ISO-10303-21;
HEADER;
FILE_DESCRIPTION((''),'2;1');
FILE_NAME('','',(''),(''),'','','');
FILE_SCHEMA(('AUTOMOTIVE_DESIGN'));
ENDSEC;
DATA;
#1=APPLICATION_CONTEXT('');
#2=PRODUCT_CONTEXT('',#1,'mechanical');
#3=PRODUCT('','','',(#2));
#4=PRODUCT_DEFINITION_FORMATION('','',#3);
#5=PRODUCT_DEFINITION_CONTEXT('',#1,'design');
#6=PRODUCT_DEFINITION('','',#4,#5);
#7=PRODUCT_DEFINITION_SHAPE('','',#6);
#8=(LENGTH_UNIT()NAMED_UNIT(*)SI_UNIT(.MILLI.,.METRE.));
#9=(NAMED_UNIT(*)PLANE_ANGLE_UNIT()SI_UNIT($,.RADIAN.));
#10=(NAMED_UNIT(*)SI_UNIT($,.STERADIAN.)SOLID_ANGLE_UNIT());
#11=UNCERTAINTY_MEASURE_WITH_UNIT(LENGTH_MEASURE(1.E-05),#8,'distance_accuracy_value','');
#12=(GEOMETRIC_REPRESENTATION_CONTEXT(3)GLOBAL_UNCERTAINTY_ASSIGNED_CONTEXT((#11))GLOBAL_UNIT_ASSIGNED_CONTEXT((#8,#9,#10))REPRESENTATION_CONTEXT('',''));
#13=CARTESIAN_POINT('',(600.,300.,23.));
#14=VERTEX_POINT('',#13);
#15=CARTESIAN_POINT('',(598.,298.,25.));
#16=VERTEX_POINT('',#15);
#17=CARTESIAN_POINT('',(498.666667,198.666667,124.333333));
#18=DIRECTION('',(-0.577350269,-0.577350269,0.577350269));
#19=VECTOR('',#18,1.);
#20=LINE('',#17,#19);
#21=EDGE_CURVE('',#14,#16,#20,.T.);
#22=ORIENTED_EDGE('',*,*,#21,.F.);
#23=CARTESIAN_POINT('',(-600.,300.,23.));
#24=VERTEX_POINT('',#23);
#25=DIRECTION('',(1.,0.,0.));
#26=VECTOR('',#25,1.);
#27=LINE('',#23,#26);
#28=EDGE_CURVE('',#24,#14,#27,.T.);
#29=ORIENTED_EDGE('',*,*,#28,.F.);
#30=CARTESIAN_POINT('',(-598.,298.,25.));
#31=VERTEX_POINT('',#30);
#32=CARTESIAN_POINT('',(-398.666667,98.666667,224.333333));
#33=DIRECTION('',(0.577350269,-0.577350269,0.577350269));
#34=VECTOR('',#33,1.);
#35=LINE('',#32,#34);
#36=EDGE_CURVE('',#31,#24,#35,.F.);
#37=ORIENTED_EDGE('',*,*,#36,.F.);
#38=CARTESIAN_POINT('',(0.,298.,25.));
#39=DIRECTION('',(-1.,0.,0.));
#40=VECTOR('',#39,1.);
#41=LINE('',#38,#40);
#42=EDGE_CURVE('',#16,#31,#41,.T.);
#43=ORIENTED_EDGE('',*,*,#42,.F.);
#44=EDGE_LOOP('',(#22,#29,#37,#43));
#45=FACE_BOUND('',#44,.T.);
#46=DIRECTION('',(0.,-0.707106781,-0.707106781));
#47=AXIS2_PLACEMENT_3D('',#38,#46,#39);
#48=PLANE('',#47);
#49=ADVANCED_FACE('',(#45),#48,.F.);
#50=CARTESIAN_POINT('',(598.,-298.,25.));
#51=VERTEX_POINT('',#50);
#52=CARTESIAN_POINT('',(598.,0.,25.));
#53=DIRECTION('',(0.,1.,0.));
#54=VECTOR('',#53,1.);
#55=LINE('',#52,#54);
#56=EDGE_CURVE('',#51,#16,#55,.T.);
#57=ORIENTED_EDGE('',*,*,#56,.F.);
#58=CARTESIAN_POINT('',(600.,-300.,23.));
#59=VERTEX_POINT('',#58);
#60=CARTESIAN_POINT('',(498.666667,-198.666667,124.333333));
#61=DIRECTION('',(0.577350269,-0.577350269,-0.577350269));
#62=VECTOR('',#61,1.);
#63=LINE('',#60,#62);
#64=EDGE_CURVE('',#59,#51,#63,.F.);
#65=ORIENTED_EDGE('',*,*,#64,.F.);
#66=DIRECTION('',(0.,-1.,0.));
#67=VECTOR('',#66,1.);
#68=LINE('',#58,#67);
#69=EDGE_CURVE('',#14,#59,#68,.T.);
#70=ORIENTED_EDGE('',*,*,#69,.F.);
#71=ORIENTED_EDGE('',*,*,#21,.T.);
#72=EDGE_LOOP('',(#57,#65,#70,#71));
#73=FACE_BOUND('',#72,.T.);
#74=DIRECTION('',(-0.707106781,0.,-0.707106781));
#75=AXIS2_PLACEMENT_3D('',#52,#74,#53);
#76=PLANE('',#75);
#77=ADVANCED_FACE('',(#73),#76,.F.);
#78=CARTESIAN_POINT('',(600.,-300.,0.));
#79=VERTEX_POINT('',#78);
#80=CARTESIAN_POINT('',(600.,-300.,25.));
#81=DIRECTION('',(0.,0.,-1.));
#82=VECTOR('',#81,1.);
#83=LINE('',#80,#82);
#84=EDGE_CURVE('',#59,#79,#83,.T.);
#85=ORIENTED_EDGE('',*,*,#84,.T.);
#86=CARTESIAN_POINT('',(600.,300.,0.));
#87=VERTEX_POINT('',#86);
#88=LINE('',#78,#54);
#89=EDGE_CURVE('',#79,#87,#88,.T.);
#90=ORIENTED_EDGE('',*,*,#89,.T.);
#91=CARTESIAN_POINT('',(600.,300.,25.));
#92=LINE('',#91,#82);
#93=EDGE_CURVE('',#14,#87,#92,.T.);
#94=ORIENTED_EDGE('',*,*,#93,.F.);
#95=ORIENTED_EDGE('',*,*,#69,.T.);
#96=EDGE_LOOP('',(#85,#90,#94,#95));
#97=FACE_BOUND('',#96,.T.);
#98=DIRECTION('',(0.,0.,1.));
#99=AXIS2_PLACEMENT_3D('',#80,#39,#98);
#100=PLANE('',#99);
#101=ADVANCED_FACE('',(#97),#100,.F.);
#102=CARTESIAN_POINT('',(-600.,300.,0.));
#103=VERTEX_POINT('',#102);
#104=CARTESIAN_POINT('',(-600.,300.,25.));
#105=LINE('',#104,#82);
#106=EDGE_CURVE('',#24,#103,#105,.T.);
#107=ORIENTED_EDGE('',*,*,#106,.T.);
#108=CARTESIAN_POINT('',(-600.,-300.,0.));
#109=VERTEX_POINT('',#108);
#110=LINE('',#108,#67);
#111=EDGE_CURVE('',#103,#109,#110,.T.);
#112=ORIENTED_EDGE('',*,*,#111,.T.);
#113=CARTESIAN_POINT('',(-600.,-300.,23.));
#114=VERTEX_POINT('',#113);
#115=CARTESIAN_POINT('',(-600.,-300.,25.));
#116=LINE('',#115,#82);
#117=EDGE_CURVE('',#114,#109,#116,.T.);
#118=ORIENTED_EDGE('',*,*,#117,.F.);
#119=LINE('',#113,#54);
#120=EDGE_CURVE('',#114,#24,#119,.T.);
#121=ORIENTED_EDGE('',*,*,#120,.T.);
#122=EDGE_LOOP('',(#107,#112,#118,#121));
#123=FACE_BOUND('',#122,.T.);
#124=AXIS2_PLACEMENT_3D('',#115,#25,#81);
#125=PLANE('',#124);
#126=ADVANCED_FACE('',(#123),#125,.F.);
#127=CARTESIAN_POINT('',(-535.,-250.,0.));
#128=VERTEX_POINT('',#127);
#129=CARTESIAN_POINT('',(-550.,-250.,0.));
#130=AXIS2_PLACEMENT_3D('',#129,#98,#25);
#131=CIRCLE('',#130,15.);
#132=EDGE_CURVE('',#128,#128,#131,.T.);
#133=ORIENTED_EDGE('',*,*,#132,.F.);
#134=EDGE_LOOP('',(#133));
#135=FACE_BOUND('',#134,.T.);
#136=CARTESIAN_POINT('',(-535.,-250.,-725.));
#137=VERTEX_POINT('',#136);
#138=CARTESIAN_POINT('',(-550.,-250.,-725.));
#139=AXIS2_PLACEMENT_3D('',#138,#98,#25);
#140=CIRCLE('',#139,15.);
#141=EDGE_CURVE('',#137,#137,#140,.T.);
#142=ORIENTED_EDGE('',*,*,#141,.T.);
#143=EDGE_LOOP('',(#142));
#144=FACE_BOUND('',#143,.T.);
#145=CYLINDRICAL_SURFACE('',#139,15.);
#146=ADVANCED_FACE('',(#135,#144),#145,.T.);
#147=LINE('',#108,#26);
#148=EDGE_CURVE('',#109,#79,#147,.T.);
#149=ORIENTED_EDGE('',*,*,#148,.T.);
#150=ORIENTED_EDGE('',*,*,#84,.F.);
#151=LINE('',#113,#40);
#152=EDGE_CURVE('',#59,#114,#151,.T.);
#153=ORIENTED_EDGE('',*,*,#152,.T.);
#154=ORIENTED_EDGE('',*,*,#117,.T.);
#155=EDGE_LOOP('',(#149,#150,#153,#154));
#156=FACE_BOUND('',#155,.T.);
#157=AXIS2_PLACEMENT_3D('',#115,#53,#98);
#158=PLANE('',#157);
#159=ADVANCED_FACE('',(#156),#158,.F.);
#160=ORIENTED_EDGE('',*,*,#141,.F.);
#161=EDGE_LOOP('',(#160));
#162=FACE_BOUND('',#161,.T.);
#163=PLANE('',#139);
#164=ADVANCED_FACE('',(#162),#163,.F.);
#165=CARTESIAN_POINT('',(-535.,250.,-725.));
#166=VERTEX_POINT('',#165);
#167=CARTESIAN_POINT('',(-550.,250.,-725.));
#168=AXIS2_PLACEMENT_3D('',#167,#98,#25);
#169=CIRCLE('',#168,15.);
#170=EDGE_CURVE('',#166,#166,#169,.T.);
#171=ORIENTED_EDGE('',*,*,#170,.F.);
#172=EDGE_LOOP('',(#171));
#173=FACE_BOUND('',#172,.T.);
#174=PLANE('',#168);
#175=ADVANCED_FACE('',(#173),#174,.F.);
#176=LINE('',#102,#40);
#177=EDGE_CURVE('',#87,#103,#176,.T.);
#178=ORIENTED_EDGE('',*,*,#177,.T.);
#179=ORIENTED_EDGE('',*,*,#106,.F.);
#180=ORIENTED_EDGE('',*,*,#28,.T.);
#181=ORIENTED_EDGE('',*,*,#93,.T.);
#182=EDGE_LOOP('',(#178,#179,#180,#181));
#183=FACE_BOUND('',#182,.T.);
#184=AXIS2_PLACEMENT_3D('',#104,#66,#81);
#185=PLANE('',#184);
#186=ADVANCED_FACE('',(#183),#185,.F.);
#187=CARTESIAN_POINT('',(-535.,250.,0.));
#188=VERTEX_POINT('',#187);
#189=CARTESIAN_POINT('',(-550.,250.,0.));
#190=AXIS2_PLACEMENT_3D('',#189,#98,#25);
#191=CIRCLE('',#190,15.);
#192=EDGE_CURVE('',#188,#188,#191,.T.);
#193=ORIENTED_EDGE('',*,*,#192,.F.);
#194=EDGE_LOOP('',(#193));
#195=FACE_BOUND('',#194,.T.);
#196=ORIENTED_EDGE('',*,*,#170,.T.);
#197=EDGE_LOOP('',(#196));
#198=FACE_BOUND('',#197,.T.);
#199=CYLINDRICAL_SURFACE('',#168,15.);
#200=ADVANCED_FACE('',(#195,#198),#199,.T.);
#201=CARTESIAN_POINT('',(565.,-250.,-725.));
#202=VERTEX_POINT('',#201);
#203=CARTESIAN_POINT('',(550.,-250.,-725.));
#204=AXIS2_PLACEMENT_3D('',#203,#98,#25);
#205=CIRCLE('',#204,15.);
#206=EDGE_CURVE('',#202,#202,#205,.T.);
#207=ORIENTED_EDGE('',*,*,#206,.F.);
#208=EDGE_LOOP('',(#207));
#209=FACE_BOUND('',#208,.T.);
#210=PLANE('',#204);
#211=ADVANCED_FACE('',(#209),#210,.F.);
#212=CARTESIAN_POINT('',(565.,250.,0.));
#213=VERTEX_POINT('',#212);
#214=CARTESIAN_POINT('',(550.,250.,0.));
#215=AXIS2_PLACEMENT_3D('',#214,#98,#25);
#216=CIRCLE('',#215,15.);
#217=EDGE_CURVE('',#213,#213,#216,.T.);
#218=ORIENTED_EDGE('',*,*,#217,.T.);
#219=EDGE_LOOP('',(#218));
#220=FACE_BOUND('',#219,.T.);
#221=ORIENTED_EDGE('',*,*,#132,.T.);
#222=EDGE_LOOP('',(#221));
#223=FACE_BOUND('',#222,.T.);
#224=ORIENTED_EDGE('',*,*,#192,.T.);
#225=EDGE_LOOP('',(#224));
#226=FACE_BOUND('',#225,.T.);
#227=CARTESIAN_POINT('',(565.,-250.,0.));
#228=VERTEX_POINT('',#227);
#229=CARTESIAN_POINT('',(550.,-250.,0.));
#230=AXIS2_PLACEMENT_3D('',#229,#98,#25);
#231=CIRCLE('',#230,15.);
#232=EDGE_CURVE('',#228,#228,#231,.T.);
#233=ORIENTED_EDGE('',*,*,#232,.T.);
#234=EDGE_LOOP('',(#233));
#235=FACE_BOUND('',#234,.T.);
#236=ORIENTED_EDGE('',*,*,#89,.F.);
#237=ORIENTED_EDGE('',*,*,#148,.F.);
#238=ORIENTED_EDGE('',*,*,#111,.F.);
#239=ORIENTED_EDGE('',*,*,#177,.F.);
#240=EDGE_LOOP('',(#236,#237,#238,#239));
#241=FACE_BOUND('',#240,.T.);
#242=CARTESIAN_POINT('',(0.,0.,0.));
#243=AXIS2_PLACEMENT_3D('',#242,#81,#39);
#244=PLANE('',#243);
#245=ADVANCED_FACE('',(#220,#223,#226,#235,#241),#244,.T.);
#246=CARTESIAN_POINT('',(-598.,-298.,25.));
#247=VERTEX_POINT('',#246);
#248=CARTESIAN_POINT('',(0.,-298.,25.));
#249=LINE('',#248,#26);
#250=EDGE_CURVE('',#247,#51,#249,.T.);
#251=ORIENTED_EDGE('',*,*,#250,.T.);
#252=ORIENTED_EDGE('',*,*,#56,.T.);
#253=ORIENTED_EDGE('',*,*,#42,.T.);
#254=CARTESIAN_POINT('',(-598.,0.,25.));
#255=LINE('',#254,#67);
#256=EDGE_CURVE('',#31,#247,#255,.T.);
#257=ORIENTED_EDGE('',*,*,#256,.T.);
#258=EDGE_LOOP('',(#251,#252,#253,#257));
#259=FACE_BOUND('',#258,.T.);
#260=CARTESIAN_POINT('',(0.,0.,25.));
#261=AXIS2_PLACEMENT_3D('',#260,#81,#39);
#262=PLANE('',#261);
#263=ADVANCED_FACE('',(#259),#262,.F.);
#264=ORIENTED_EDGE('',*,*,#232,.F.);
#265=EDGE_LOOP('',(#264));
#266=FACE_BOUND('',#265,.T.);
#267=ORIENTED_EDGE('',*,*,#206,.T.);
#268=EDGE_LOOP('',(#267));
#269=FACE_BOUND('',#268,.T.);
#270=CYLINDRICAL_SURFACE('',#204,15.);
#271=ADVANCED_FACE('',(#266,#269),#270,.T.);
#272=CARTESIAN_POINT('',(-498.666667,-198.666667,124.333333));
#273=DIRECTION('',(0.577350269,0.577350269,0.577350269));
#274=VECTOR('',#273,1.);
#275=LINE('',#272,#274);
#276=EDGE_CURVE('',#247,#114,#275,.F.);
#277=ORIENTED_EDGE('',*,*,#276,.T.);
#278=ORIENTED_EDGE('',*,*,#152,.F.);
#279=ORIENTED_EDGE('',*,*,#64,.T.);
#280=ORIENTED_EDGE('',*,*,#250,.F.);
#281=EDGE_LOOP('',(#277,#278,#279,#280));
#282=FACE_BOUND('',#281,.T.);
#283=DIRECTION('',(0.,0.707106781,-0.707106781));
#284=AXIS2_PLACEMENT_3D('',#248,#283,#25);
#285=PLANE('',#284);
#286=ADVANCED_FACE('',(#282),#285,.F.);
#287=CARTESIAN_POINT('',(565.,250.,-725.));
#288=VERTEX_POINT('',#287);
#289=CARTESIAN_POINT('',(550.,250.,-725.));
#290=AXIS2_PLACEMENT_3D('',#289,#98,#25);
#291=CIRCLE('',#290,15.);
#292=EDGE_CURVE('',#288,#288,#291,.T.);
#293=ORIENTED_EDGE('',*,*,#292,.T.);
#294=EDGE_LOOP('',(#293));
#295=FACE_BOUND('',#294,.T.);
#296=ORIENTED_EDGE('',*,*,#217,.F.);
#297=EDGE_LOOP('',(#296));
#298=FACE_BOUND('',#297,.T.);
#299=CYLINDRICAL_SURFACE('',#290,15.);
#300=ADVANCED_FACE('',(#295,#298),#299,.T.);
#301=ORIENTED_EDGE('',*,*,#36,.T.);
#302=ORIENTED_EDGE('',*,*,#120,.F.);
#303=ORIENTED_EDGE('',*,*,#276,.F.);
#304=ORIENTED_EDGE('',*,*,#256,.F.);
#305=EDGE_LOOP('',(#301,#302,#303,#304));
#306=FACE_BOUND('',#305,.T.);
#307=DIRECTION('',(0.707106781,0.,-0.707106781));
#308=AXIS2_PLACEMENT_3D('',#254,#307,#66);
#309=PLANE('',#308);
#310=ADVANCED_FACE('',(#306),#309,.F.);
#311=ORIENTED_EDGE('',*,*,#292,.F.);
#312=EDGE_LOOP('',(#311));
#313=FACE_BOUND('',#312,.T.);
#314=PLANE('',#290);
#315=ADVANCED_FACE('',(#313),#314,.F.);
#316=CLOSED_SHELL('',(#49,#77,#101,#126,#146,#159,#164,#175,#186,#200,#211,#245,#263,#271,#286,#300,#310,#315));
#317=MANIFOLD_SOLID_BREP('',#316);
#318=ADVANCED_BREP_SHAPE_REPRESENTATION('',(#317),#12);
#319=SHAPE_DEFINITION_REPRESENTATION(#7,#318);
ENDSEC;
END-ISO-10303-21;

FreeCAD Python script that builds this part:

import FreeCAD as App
import Part
import Sketcher

V = App.Vector


def edges_at(feature, points):
    """Names of the edges that pass closest to the given points."""
    edges = feature.Shape.Edges
    near = lambda p: min(range(len(edges)), key=lambda i: edges[i].distToShape(Part.Vertex(*p))[0])
    return sorted({f"Edge{near(p) + 1}" for p in points})


def add_polygon(sketch, points):
    """Adds a closed chain of lines whose ends are joined by coincident constraints."""
    first, n = sketch.GeometryCount, len(points)
    for a, b in zip(points, points[1:] + points[:1]):
        sketch.addGeometry(Part.LineSegment(App.Vector(*a, 0), App.Vector(*b, 0)), False)
    for i in range(n):
        sketch.addConstraint(Sketcher.Constraint("Coincident", first + i, 2, first + (i + 1) % n, 1))

doc = App.newDocument("Part")
body = doc.addObject("PartDesign::Body", "Body")

# Sketch on XY plane
sketch1 = body.newObject("Sketcher::SketchObject", "Sketch")
sketch1.AttachmentSupport = (doc.getObject("XY_Plane"), [""])
sketch1.MapMode = "FlatFace"
add_polygon(sketch1, [(-600, 300), (-600, -300), (600, -300), (600, 300)])  # lines 0-3
sketch1.addConstraint(Sketcher.Constraint("Vertical", 0))
sketch1.addConstraint(Sketcher.Constraint("Horizontal", 1))
sketch1.addConstraint(Sketcher.Constraint("Vertical", 2))
sketch1.addConstraint(Sketcher.Constraint("Horizontal", 3))
sketch1.addConstraint(Sketcher.Constraint("Symmetric", 0, 2, 2, 2, -1, 1))
sketch1.addConstraint(Sketcher.Constraint("DistanceX", 1, 1, 1, 2, 1200.0))
sketch1.addConstraint(Sketcher.Constraint("DistanceY", 0, 2, 0, 1, 600.0))
pad1 = body.newObject("PartDesign::Pad", "Pad")
pad1.Profile = sketch1
pad1.Length = 25

# Sketch on XY plane
sketch2 = body.newObject("Sketcher::SketchObject", "Sketch001")
sketch2.AttachmentSupport = (doc.getObject("XY_Plane"), [""])
sketch2.MapMode = "FlatFace"
sketch2.addGeometry(Part.Circle(V(550, 250, 0), V(0, 0, 1), 15), False)
sketch2.addGeometry(Part.Circle(V(-550, 250, 0), V(0, 0, 1), 15), False)
sketch2.addGeometry(Part.Circle(V(-550, -250, 0), V(0, 0, 1), 15), False)
sketch2.addGeometry(Part.Circle(V(550, -250, 0), V(0, 0, 1), 15), False)
sketch2.addConstraint(Sketcher.Constraint("Equal", 0, 1))
sketch2.addConstraint(Sketcher.Constraint("Equal", 1, 2))
sketch2.addConstraint(Sketcher.Constraint("Equal", 2, 3))
sketch2.addConstraint(Sketcher.Constraint("Symmetric", 0, 3, 2, 3, -1, 1))
sketch2.addConstraint(Sketcher.Constraint("Symmetric", 1, 3, 3, 3, -1, 1))
sketch2.addConstraint(Sketcher.Constraint("Symmetric", 0, 3, 1, 3, -2))
sketch2.addConstraint(Sketcher.Constraint("Diameter", 0, 30.0))
sketch2.addConstraint(Sketcher.Constraint("DistanceX", -1, 1, 0, 3, 550.0))
sketch2.addConstraint(Sketcher.Constraint("DistanceY", -1, 1, 0, 3, 250.0))
pad2 = body.newObject("PartDesign::Pad", "Pad001")
pad2.Profile = sketch2
pad2.Length = 725
pad2.Reversed = True
doc.recompute()

chamfer = body.newObject("PartDesign::Chamfer", "Chamfer")
chamfer.Base = (pad2, edges_at(pad2, [
    (-600, 0, 25),
    (0, -300, 25),
    (600, 0, 25),
    (0, 300, 25),
]))
chamfer.Size = 2

doc.recompute()
